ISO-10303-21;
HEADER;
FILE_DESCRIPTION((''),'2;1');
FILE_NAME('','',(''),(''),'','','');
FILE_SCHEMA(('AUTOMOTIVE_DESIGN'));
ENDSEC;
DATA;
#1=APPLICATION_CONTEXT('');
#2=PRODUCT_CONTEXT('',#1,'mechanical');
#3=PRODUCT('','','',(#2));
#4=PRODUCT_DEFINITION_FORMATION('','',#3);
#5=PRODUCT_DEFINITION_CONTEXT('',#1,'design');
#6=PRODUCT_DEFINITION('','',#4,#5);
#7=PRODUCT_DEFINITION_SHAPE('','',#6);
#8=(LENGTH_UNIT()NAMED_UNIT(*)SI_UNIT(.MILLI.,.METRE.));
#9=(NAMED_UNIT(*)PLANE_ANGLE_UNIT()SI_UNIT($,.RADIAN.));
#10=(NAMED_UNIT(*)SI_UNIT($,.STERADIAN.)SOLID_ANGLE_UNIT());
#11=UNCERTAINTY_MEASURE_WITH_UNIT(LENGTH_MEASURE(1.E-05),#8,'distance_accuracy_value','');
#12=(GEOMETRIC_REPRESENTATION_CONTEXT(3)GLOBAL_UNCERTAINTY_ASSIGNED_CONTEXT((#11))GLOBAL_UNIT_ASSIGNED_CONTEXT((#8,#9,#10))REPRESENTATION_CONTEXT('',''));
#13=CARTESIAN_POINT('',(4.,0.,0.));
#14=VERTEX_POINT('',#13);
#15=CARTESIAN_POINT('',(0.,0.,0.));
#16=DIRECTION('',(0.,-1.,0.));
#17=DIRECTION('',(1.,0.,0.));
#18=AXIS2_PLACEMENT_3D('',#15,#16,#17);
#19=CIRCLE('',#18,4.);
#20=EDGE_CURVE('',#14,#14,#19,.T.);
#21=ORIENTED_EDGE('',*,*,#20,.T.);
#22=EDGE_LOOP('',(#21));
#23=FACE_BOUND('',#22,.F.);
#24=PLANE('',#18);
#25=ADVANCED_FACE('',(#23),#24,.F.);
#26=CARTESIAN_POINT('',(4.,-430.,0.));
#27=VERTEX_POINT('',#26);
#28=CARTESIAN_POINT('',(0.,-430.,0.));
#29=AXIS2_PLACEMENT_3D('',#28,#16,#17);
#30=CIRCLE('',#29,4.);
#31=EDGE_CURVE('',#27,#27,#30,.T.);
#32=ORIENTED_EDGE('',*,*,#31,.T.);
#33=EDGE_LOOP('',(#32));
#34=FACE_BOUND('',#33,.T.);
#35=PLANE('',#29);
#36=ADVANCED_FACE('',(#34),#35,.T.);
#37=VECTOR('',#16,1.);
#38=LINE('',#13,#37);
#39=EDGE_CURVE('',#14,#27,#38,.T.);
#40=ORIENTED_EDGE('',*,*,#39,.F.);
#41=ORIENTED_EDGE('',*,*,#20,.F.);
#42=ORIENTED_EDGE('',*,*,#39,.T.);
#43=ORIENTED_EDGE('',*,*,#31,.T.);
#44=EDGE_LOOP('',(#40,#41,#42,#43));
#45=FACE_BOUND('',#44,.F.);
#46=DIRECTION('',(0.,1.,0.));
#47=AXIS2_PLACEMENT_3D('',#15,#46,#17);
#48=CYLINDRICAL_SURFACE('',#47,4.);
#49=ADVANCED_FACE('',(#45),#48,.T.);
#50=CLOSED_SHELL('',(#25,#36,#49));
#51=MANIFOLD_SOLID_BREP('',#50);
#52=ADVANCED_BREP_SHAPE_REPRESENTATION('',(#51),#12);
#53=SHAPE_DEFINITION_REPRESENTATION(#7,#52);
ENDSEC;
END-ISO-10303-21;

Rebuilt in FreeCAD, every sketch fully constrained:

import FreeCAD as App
import Part
import Sketcher
from FreeCAD import Vector
Q = App.Units.Quantity

doc = App.newDocument("Part")
body = doc.addObject("PartDesign::Body", "Body")

# Sketch on XZ plane
sketch1 = body.newObject("Sketcher::SketchObject", "Sketch")
sketch1.AttachmentSupport = (doc.getObject("XZ_Plane"), [""])
sketch1.MapMode = "FlatFace"
sketch1.addGeometry(Part.Circle(Vector(0, 0, 0), Vector(0, 0, 1), 4), False)
sketch1.addConstraint([
    Sketcher.Constraint("Coincident", 0, 3, -1, 1),
    Sketcher.Constraint("Diameter", 0, Q("8 mm")),
])
pad1 = body.newObject("PartDesign::Pad", "Pad")
pad1.Profile = sketch1
pad1.Length = 430

doc.recompute()
